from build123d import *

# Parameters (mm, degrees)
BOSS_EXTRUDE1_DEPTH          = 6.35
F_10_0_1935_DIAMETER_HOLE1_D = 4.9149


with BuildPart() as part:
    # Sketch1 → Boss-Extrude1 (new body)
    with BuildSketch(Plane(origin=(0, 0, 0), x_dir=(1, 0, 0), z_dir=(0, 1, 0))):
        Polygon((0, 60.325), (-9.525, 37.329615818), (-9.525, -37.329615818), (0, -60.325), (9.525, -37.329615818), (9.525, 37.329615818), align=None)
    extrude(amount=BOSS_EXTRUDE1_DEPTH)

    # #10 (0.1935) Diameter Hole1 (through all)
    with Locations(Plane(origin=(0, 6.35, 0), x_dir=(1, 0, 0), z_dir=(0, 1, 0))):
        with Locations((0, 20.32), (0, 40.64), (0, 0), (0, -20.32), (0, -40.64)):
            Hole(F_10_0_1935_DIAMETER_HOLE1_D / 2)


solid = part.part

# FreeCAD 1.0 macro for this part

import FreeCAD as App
import Part
import Sketcher

V = App.Vector
Q = App.Units.Quantity


def add_polygon(sketch, points):
    """Adds a closed chain of lines whose ends are joined by coincident constraints."""
    first, n = sketch.GeometryCount, len(points)
    for a, b in zip(points, points[1:] + points[:1]):
        sketch.addGeometry(Part.LineSegment(App.Vector(*a, 0), App.Vector(*b, 0)), False)
    for i in range(n):
        sketch.addConstraint(Sketcher.Constraint("Coincident", first + i, 2, first + (i + 1) % n, 1))

doc = App.newDocument("Part")
body = doc.addObject("PartDesign::Body", "Body")

# Sketch on XZ plane
sketch1 = doc.addObject("Sketcher::SketchObject", "Sketch")
body.addObject(sketch1)
sketch1.AttachmentSupport = (doc.XZ_Plane, [""])
sketch1.MapMode = "FlatFace"
add_polygon(sketch1, [(0, -60.325), (-9.525, -37.329616), (-9.525, 37.329616), (0, 60.325), (9.525, 37.329616), (9.525, -37.329616)])  # lines 0-5
sketch1.addConstraint(Sketcher.Constraint("Vertical", 1))
sketch1.addConstraint(Sketcher.Constraint("Vertical", 4))
sketch1.addConstraint(Sketcher.Constraint("Symmetric", 0, 2, 3, 2, -1, 1))
sketch1.addConstraint(Sketcher.Constraint("Symmetric", 2, 2, 5, 2, -1, 1))
sketch1.addConstraint(Sketcher.Constraint("PointOnObject", 2, 2, -2))
sketch1.addConstraint(Sketcher.Constraint("Parallel", 2, 5))
sketch1.addConstraint(Sketcher.Constraint("Horizontal", 1, 2, 3, 2))
sketch1.addConstraint(Sketcher.Constraint("Angle", 0, Q("112.5 deg")))
sketch1.addConstraint(Sketcher.Constraint("DistanceX", 1, 2, 3, 2, Q("0.75 in")))
sketch1.addConstraint(Sketcher.Constraint("DistanceY", 5, 2, 2, 2, Q("4.75 in")))
pad1 = doc.addObject("PartDesign::Pad", "Pad")
body.addObject(pad1)
pad1.Profile = sketch1
pad1.Length = Q("0.25 in")
pad1.Reversed = True

# Sketch on XZ plane
sketch2 = doc.addObject("Sketcher::SketchObject", "Sketch001")
body.addObject(sketch2)
sketch2.AttachmentSupport = (doc.XZ_Plane, [""])
sketch2.MapMode = "FlatFace"
sketch2.AttachmentOffset = App.Placement(V(0, 0, -0.25 * 25.4), App.Rotation())
sketch2.addGeometry(Part.Circle(V(0, -20.32, 0), V(0, 0, 1), 2.45745), False)
sketch2.addGeometry(Part.Circle(V(0, -40.64, 0), V(0, 0, 1), 2.45745), False)
sketch2.addGeometry(Part.Circle(V(0, 0, 0), V(0, 0, 1), 2.45745), False)
sketch2.addGeometry(Part.Circle(V(0, 20.32, 0), V(0, 0, 1), 2.45745), False)
sketch2.addGeometry(Part.Circle(V(0, 40.64, 0), V(0, 0, 1), 2.45745), False)
sketch2.addConstraint(Sketcher.Constraint("Coincident", 2, 3, -1, 1))
sketch2.addConstraint(Sketcher.Constraint("Equal", 0, 1))
sketch2.addConstraint(Sketcher.Constraint("Equal", 1, 2))
sketch2.addConstraint(Sketcher.Constraint("Equal", 2, 3))
sketch2.addConstraint(Sketcher.Constraint("Equal", 3, 4))
sketch2.addConstraint(Sketcher.Constraint("Symmetric", 0, 3, 3, 3, -1, 1))
sketch2.addConstraint(Sketcher.Constraint("Symmetric", 1, 3, 4, 3, -1, 1))
sketch2.addConstraint(Sketcher.Constraint("PointOnObject", 0, 3, -2))
sketch2.addConstraint(Sketcher.Constraint("PointOnObject", 1, 3, -2))
sketch2.addConstraint(Sketcher.Constraint("Diameter", 0, Q("0.1935 in")))
sketch2.addConstraint(Sketcher.Constraint("DistanceY", 0, 3, -1, 1, Q("0.8 in")))
sketch2.addConstraint(Sketcher.Constraint("DistanceY", 1, 3, -1, 1, Q("1.6 in")))
doc.recompute()
hole = doc.addObject("PartDesign::Hole", "Hole")
body.addObject(hole)
hole.Profile = sketch2
hole.ThreadType = "None"
hole.Diameter = Q("0.1935 in")
hole.DepthType = "ThroughAll"
hole.Reversed = True

doc.recompute()
